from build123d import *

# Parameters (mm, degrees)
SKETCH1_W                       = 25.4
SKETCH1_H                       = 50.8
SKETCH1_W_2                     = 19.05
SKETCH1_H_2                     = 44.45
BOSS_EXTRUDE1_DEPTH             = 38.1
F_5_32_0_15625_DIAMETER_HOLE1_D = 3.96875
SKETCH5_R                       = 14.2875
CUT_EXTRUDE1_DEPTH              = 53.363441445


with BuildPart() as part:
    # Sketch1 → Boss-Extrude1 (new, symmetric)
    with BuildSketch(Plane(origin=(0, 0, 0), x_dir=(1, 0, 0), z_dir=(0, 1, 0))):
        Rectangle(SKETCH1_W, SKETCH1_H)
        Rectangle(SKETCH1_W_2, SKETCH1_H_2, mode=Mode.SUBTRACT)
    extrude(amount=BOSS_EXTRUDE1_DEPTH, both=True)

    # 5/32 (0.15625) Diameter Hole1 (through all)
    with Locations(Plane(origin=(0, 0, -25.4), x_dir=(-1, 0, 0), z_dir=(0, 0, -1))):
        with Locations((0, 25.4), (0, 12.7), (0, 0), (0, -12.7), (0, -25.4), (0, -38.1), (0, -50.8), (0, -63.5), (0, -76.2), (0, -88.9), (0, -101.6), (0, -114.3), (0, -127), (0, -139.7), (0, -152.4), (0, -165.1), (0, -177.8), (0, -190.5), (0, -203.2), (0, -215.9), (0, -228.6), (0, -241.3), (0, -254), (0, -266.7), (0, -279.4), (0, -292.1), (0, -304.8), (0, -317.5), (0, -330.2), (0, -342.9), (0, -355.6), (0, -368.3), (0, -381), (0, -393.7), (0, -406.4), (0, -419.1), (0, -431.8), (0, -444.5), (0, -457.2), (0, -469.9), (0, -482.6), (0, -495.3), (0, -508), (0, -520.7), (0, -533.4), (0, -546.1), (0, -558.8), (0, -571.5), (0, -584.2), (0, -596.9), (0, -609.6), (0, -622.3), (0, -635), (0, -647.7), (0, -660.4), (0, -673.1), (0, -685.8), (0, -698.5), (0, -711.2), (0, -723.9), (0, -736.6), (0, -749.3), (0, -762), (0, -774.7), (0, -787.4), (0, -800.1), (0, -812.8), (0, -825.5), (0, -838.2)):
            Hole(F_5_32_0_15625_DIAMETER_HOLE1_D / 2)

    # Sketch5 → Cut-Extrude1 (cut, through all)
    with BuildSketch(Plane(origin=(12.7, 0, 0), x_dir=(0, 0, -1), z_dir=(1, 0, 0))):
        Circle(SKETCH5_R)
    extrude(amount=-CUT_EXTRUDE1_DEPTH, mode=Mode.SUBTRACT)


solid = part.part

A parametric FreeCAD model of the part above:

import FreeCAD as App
import Part
import Sketcher
Q = App.Units.Quantity

doc = App.newDocument("Part")
params = doc.addObject("Spreadsheet::Sheet", "Params")
for row, (alias, value) in enumerate([
    ("sketch1_width", "1 in"),
    ("sketch1_height", "2 in"),
    ("sketch1_width2", "0.75 in"),
    ("sketch1_height2", "1.75 in"),
    ("pad1_length", "3 in"),
    ("sketch2_diameter", "0.15625 in"),
    ("hole_diameter", "0.15625 in"),
    ("sketch3_diameter", "1.125 in"),
], start=1):
    params.set(f"A{row}", alias)
    params.set(f"B{row}", "=" + value)
    params.setAlias(f"B{row}", alias)

body = doc.addObject("PartDesign::Body", "Body")

# Sketch on XZ plane
sketch1 = body.newObject("Sketcher::SketchObject", "Sketch")
sketch1.AttachmentSupport = (doc.getObject("XZ_Plane"), [""])
sketch1.MapMode = "FlatFace"
sketch1.addGeometry([
    Part.LineSegment(App.Vector(-13, -25, 0), App.Vector(-13, 25, 0)),  # 0
    Part.LineSegment(App.Vector(-13, 25, 0), App.Vector(13, 25, 0)),  # 1
    Part.LineSegment(App.Vector(13, 25, 0), App.Vector(13, -25, 0)),  # 2
    Part.LineSegment(App.Vector(13, -25, 0), App.Vector(-13, -25, 0)),  # 3
    Part.LineSegment(App.Vector(10, 22, 0), App.Vector(-10, 22, 0)),  # 4
    Part.LineSegment(App.Vector(-10, 22, 0), App.Vector(-10, -22, 0)),  # 5
    Part.LineSegment(App.Vector(-10, -22, 0), App.Vector(10, -22, 0)),  # 6
    Part.LineSegment(App.Vector(10, -22, 0), App.Vector(10, 22, 0)),  # 7
], False)
sketch1.addConstraint([
    Sketcher.Constraint("Coincident", 0, 2, 1, 1),
    Sketcher.Constraint("Coincident", 1, 2, 2, 1),
    Sketcher.Constraint("Coincident", 2, 2, 3, 1),
    Sketcher.Constraint("Coincident", 3, 2, 0, 1),
    Sketcher.Constraint("Coincident", 4, 2, 5, 1),
    Sketcher.Constraint("Coincident", 5, 2, 6, 1),
    Sketcher.Constraint("Coincident", 6, 2, 7, 1),
    Sketcher.Constraint("Coincident", 7, 2, 4, 1),
    Sketcher.Constraint("Vertical", 0),
    Sketcher.Constraint("Horizontal", 1),
    Sketcher.Constraint("Vertical", 2),
    Sketcher.Constraint("Horizontal", 3),
    Sketcher.Constraint("Horizontal", 4),
    Sketcher.Constraint("Vertical", 5),
    Sketcher.Constraint("Horizontal", 6),
    Sketcher.Constraint("Vertical", 7),
    Sketcher.Constraint("Symmetric", 0, 2, 2, 2, -1, 1),
    Sketcher.Constraint("Symmetric", 4, 2, 6, 2, -1, 1),
    Sketcher.Constraint("DistanceX", 1, 1, 1, 2, Q("1 in")),
    Sketcher.Constraint("DistanceY", 0, 1, 0, 2, Q("2 in")),
    Sketcher.Constraint("DistanceX", 4, 2, 4, 1, Q("0.75 in")),
    Sketcher.Constraint("DistanceY", 5, 2, 5, 1, Q("1.75 in")),
])
sketch1.setExpression("Constraints[18]", "Params.sketch1_width")
sketch1.setExpression("Constraints[19]", "Params.sketch1_height")
sketch1.setExpression("Constraints[20]", "Params.sketch1_width2")
sketch1.setExpression("Constraints[21]", "Params.sketch1_height2")
pad1 = body.newObject("PartDesign::Pad", "Pad")
pad1.Profile = sketch1
pad1.setExpression("Length", "Params.pad1_length")
pad1.Midplane = True

# Sketch on XY plane
sketch2 = body.newObject("Sketcher::SketchObject", "Sketch001")
sketch2.AttachmentSupport = (doc.getObject("XY_Plane"), [""])
sketch2.MapMode = "FlatFace"
sketch2.AttachmentOffset = App.Placement(App.Vector(0, 0, -1 * 25.4), App.Rotation())
sketch2.addGeometry([
    Part.Circle(App.Vector(0, 25.4, 0), App.Vector(0, 0, 1), 2),  # 0
    Part.Circle(App.Vector(0, 12.7, 0), App.Vector(0, 0, 1), 2),  # 1
    Part.Circle(App.Vector(0, 0, 0), App.Vector(0, 0, 1), 2),  # 2
    Part.Circle(App.Vector(0, -12.7, 0), App.Vector(0, 0, 1), 2),  # 3
    Part.Circle(App.Vector(0, -25.4, 0), App.Vector(0, 0, 1), 2),  # 4
    Part.Circle(App.Vector(0, -38.1, 0), App.Vector(0, 0, 1), 2),  # 5
    Part.Circle(App.Vector(0, -50.8, 0), App.Vector(0, 0, 1), 2),  # 6
    Part.Circle(App.Vector(0, -63.5, 0), App.Vector(0, 0, 1), 2),  # 7
    Part.Circle(App.Vector(0, -76.2, 0), App.Vector(0, 0, 1), 2),  # 8
    Part.Circle(App.Vector(0, -88.9, 0), App.Vector(0, 0, 1), 2),  # 9
    Part.Circle(App.Vector(0, -101.6, 0), App.Vector(0, 0, 1), 2),  # 10
    Part.Circle(App.Vector(0, -114.3, 0), App.Vector(0, 0, 1), 2),  # 11
    Part.Circle(App.Vector(0, -127, 0), App.Vector(0, 0, 1), 2),  # 12
    Part.Circle(App.Vector(0, -139.7, 0), App.Vector(0, 0, 1), 2),  # 13
    Part.Circle(App.Vector(0, -152.4, 0), App.Vector(0, 0, 1), 2),  # 14
    Part.Circle(App.Vector(0, -165.1, 0), App.Vector(0, 0, 1), 2),  # 15
    Part.Circle(App.Vector(0, -177.8, 0), App.Vector(0, 0, 1), 2),  # 16
    Part.Circle(App.Vector(0, -190.5, 0), App.Vector(0, 0, 1), 2),  # 17
    Part.Circle(App.Vector(0, -203.2, 0), App.Vector(0, 0, 1), 2),  # 18
    Part.Circle(App.Vector(0, -215.9, 0), App.Vector(0, 0, 1), 2),  # 19
    Part.Circle(App.Vector(0, -228.6, 0), App.Vector(0, 0, 1), 2),  # 20
    Part.Circle(App.Vector(0, -241.3, 0), App.Vector(0, 0, 1), 2),  # 21
    Part.Circle(App.Vector(0, -254, 0), App.Vector(0, 0, 1), 2),  # 22
    Part.Circle(App.Vector(0, -266.7, 0), App.Vector(0, 0, 1), 2),  # 23
    Part.Circle(App.Vector(0, -279.4, 0), App.Vector(0, 0, 1), 2),  # 24
    Part.Circle(App.Vector(0, -292.1, 0), App.Vector(0, 0, 1), 2),  # 25
    Part.Circle(App.Vector(0, -304.8, 0), App.Vector(0, 0, 1), 2),  # 26
    Part.Circle(App.Vector(0, -317.5, 0), App.Vector(0, 0, 1), 2),  # 27
    Part.Circle(App.Vector(0, -330.2, 0), App.Vector(0, 0, 1), 2),  # 28
    Part.Circle(App.Vector(0, -342.9, 0), App.Vector(0, 0, 1), 2),  # 29
    Part.Circle(App.Vector(0, -355.6, 0), App.Vector(0, 0, 1), 2),  # 30
    Part.Circle(App.Vector(0, -368.3, 0), App.Vector(0, 0, 1), 2),  # 31
    Part.Circle(App.Vector(0, -381, 0), App.Vector(0, 0, 1), 2),  # 32
    Part.Circle(App.Vector(0, -393.7, 0), App.Vector(0, 0, 1), 2),  # 33
    Part.Circle(App.Vector(0, -406.4, 0), App.Vector(0, 0, 1), 2),  # 34
    Part.Circle(App.Vector(0, -419.1, 0), App.Vector(0, 0, 1), 2),  # 35
    Part.Circle(App.Vector(0, -431.8, 0), App.Vector(0, 0, 1), 2),  # 36
    Part.Circle(App.Vector(0, -444.5, 0), App.Vector(0, 0, 1), 2),  # 37
    Part.Circle(App.Vector(0, -457.2, 0), App.Vector(0, 0, 1), 2),  # 38
    Part.Circle(App.Vector(0, -469.9, 0), App.Vector(0, 0, 1), 2),  # 39
    Part.Circle(App.Vector(0, -482.6, 0), App.Vector(0, 0, 1), 2),  # 40
    Part.Circle(App.Vector(0, -495.3, 0), App.Vector(0, 0, 1), 2),  # 41
    Part.Circle(App.Vector(0, -508, 0), App.Vector(0, 0, 1), 2),  # 42
    Part.Circle(App.Vector(0, -520.7, 0), App.Vector(0, 0, 1), 2),  # 43
    Part.Circle(App.Vector(0, -533.4, 0), App.Vector(0, 0, 1), 2),  # 44
    Part.Circle(App.Vector(0, -546.1, 0), App.Vector(0, 0, 1), 2),  # 45
    Part.Circle(App.Vector(0, -558.8, 0), App.Vector(0, 0, 1), 2),  # 46
    Part.Circle(App.Vector(0, -571.5, 0), App.Vector(0, 0, 1), 2),  # 47
    Part.Circle(App.Vector(0, -584.2, 0), App.Vector(0, 0, 1), 2),  # 48
    Part.Circle(App.Vector(0, -596.9, 0), App.Vector(0, 0, 1), 2),  # 49
    Part.Circle(App.Vector(0, -609.6, 0), App.Vector(0, 0, 1), 2),  # 50
    Part.Circle(App.Vector(0, -622.3, 0), App.Vector(0, 0, 1), 2),  # 51
    Part.Circle(App.Vector(0, -635, 0), App.Vector(0, 0, 1), 2),  # 52
    Part.Circle(App.Vector(0, -647.7, 0), App.Vector(0, 0, 1), 2),  # 53
    Part.Circle(App.Vector(0, -660.4, 0), App.Vector(0, 0, 1), 2),  # 54
    Part.Circle(App.Vector(0, -673.1, 0), App.Vector(0, 0, 1), 2),  # 55
    Part.Circle(App.Vector(0, -685.8, 0), App.Vector(0, 0, 1), 2),  # 56
    Part.Circle(App.Vector(0, -698.5, 0), App.Vector(0, 0, 1), 2),  # 57
    Part.Circle(App.Vector(0, -711.2, 0), App.Vector(0, 0, 1), 2),  # 58
    Part.Circle(App.Vector(0, -723.9, 0), App.Vector(0, 0, 1), 2),  # 59
    Part.Circle(App.Vector(0, -736.6, 0), App.Vector(0, 0, 1), 2),  # 60
    Part.Circle(App.Vector(0, -749.3, 0), App.Vector(0, 0, 1), 2),  # 61
    Part.Circle(App.Vector(0, -762, 0), App.Vector(0, 0, 1), 2),  # 62
    Part.Circle(App.Vector(0, -774.7, 0), App.Vector(0, 0, 1), 2),  # 63
    Part.Circle(App.Vector(0, -787.4, 0), App.Vector(0, 0, 1), 2),  # 64
    Part.Circle(App.Vector(0, -800.1, 0), App.Vector(0, 0, 1), 2),  # 65
    Part.Circle(App.Vector(0, -812.8, 0), App.Vector(0, 0, 1), 2),  # 66
    Part.Circle(App.Vector(0, -825.5, 0), App.Vector(0, 0, 1), 2),  # 67
    Part.Circle(App.Vector(0, -838.2, 0), App.Vector(0, 0, 1), 2),  # 68
], False)
sketch2.addConstraint([
    Sketcher.Constraint("Coincident", 2, 3, -1, 1),
    Sketcher.Constraint("Equal", 0, 1),
    Sketcher.Constraint("Equal", 1, 2),
    Sketcher.Constraint("Equal", 2, 3),
    Sketcher.Constraint("Equal", 3, 4),
    Sketcher.Constraint("Equal", 4, 5),
    Sketcher.Constraint("Equal", 5, 6),
    Sketcher.Constraint("Equal", 6, 7),
    Sketcher.Constraint("Equal", 7, 8),
    Sketcher.Constraint("Equal", 8, 9),
    Sketcher.Constraint("Equal", 9, 10),
    Sketcher.Constraint("Equal", 10, 11),
    Sketcher.Constraint("Equal", 11, 12),
    Sketcher.Constraint("Equal", 12, 13),
    Sketcher.Constraint("Equal", 13, 14),
    Sketcher.Constraint("Equal", 14, 15),
    Sketcher.Constraint("Equal", 15, 16),
    Sketcher.Constraint("Equal", 16, 17),
    Sketcher.Constraint("Equal", 17, 18),
    Sketcher.Constraint("Equal", 18, 19),
    Sketcher.Constraint("Equal", 19, 20),
    Sketcher.Constraint("Equal", 20, 21),
    Sketcher.Constraint("Equal", 21, 22),
    Sketcher.Constraint("Equal", 22, 23),
    Sketcher.Constraint("Equal", 23, 24),
    Sketcher.Constraint("Equal", 24, 25),
    Sketcher.Constraint("Equal", 25, 26),
    Sketcher.Constraint("Equal", 26, 27),
    Sketcher.Constraint("Equal", 27, 28),
    Sketcher.Constraint("Equal", 28, 29),
    Sketcher.Constraint("Equal", 29, 30),
    Sketcher.Constraint("Equal", 30, 31),
    Sketcher.Constraint("Equal", 31, 32),
    Sketcher.Constraint("Equal", 32, 33),
    Sketcher.Constraint("Equal", 33, 34),
    Sketcher.Constraint("Equal", 34, 35),
    Sketcher.Constraint("Equal", 35, 36),
    Sketcher.Constraint("Equal", 36, 37),
    Sketcher.Constraint("Equal", 37, 38),
    Sketcher.Constraint("Equal", 38, 39),
    Sketcher.Constraint("Equal", 39, 40),
    Sketcher.Constraint("Equal", 40, 41),
    Sketcher.Constraint("Equal", 41, 42),
    Sketcher.Constraint("Equal", 42, 43),
    Sketcher.Constraint("Equal", 43, 44),
    Sketcher.Constraint("Equal", 44, 45),
    Sketcher.Constraint("Equal", 45, 46),
    Sketcher.Constraint("Equal", 46, 47),
    Sketcher.Constraint("Equal", 47, 48),
    Sketcher.Constraint("Equal", 48, 49),
    Sketcher.Constraint("Equal", 49, 50),
    Sketcher.Constraint("Equal", 50, 51),
    Sketcher.Constraint("Equal", 51, 52),
    Sketcher.Constraint("Equal", 52, 53),
    Sketcher.Constraint("Equal", 53, 54),
    Sketcher.Constraint("Equal", 54, 55),
    Sketcher.Constraint("Equal", 55, 56),
    Sketcher.Constraint("Equal", 56, 57),
    Sketcher.Constraint("Equal", 57, 58),
    Sketcher.Constraint("Equal", 58, 59),
    Sketcher.Constraint("Equal", 59, 60),
    Sketcher.Constraint("Equal", 60, 61),
    Sketcher.Constraint("Equal", 61, 62),
    Sketcher.Constraint("Equal", 62, 63),
    Sketcher.Constraint("Equal", 63, 64),
    Sketcher.Constraint("Equal", 64, 65),
    Sketcher.Constraint("Equal", 65, 66),
    Sketcher.Constraint("Equal", 66, 67),
    Sketcher.Constraint("Equal", 67, 68),
    Sketcher.Constraint("Symmetric", 1, 3, 3, 3, -1, 1),
    Sketcher.Constraint("Symmetric", 0, 3, 4, 3, -1, 1),
    Sketcher.Constraint("PointOnObject", 0, 3, -2),
    Sketcher.Constraint("PointOnObject", 1, 3, -2),
    Sketcher.Constraint("PointOnObject", 5, 3, -2),
    Sketcher.Constraint("PointOnObject", 6, 3, -2),
    Sketcher.Constraint("PointOnObject", 7, 3, -2),
    Sketcher.Constraint("PointOnObject", 8, 3, -2),
    Sketcher.Constraint("PointOnObject", 9, 3, -2),
    Sketcher.Constraint("PointOnObject", 10, 3, -2),
    Sketcher.Constraint("PointOnObject", 11, 3, -2),
    Sketcher.Constraint("PointOnObject", 12, 3, -2),
    Sketcher.Constraint("PointOnObject", 13, 3, -2),
    Sketcher.Constraint("PointOnObject", 14, 3, -2),
    Sketcher.Constraint("PointOnObject", 15, 3, -2),
    Sketcher.Constraint("PointOnObject", 16, 3, -2),
    Sketcher.Constraint("PointOnObject", 17, 3, -2),
    Sketcher.Constraint("PointOnObject", 18, 3, -2),
    Sketcher.Constraint("PointOnObject", 19, 3, -2),
    Sketcher.Constraint("PointOnObject", 20, 3, -2),
    Sketcher.Constraint("PointOnObject", 21, 3, -2),
    Sketcher.Constraint("PointOnObject", 22, 3, -2),
    Sketcher.Constraint("PointOnObject", 23, 3, -2),
    Sketcher.Constraint("PointOnObject", 24, 3, -2),
    Sketcher.Constraint("PointOnObject", 25, 3, -2),
    Sketcher.Constraint("PointOnObject", 26, 3, -2),
    Sketcher.Constraint("PointOnObject", 27, 3, -2),
    Sketcher.Constraint("PointOnObject", 28, 3, -2),
    Sketcher.Constraint("PointOnObject", 29, 3, -2),
    Sketcher.Constraint("PointOnObject", 30, 3, -2),
    Sketcher.Constraint("PointOnObject", 31, 3, -2),
    Sketcher.Constraint("PointOnObject", 32, 3, -2),
    Sketcher.Constraint("PointOnObject", 33, 3, -2),
    Sketcher.Constraint("PointOnObject", 34, 3, -2),
    Sketcher.Constraint("PointOnObject", 35, 3, -2),
    Sketcher.Constraint("PointOnObject", 36, 3, -2),
    Sketcher.Constraint("PointOnObject", 37, 3, -2),
    Sketcher.Constraint("PointOnObject", 38, 3, -2),
    Sketcher.Constraint("PointOnObject", 39, 3, -2),
    Sketcher.Constraint("PointOnObject", 40, 3, -2),
    Sketcher.Constraint("PointOnObject", 41, 3, -2),
    Sketcher.Constraint("PointOnObject", 42, 3, -2),
    Sketcher.Constraint("PointOnObject", 43, 3, -2),
    Sketcher.Constraint("PointOnObject", 44, 3, -2),
    Sketcher.Constraint("PointOnObject", 45, 3, -2),
    Sketcher.Constraint("PointOnObject", 46, 3, -2),
    Sketcher.Constraint("PointOnObject", 47, 3, -2),
    Sketcher.Constraint("PointOnObject", 48, 3, -2),
    Sketcher.Constraint("PointOnObject", 49, 3, -2),
    Sketcher.Constraint("PointOnObject", 50, 3, -2),
    Sketcher.Constraint("PointOnObject", 51, 3, -2),
    Sketcher.Constraint("PointOnObject", 52, 3, -2),
    Sketcher.Constraint("PointOnObject", 53, 3, -2),
    Sketcher.Constraint("PointOnObject", 54, 3, -2),
    Sketcher.Constraint("PointOnObject", 55, 3, -2),
    Sketcher.Constraint("PointOnObject", 56, 3, -2),
    Sketcher.Constraint("PointOnObject", 57, 3, -2),
    Sketcher.Constraint("PointOnObject", 58, 3, -2),
    Sketcher.Constraint("PointOnObject", 59, 3, -2),
    Sketcher.Constraint("PointOnObject", 60, 3, -2),
    Sketcher.Constraint("PointOnObject", 61, 3, -2),
    Sketcher.Constraint("PointOnObject", 62, 3, -2),
    Sketcher.Constraint("PointOnObject", 63, 3, -2),
    Sketcher.Constraint("PointOnObject", 64, 3, -2),
    Sketcher.Constraint("PointOnObject", 65, 3, -2),
    Sketcher.Constraint("PointOnObject", 66, 3, -2),
    Sketcher.Constraint("PointOnObject", 67, 3, -2),
    Sketcher.Constraint("PointOnObject", 68, 3, -2),
    Sketcher.Constraint("Diameter", 0, Q("0.15625 in")),
    Sketcher.Constraint("DistanceY", -1, 1, 0, 3, Q("1 in")),
    Sketcher.Constraint("DistanceY", 6, 3, -1, 1, Q("2 in")),
    Sketcher.Constraint("DistanceY", 8, 3, -1, 1, Q("3 in")),
    Sketcher.Constraint("DistanceY", 10, 3, -1, 1, Q("4 in")),
    Sketcher.Constraint("DistanceY", 12, 3, -1, 1, Q("5 in")),
    Sketcher.Constraint("DistanceY", 14, 3, -1, 1, Q("6 in")),
    Sketcher.Constraint("DistanceY", 16, 3, -1, 1, Q("7 in")),
    Sketcher.Constraint("DistanceY", 18, 3, -1, 1, Q("8 in")),
    Sketcher.Constraint("DistanceY", 20, 3, -1, 1, Q("9 in")),
    Sketcher.Constraint("DistanceY", 22, 3, -1, 1, Q("10 in")),
    Sketcher.Constraint("DistanceY", 24, 3, -1, 1, Q("11 in")),
    Sketcher.Constraint("DistanceY", 26, 3, -1, 1, Q("12 in")),
    Sketcher.Constraint("DistanceY", 28, 3, -1, 1, Q("13 in")),
    Sketcher.Constraint("DistanceY", 30, 3, -1, 1, Q("14 in")),
    Sketcher.Constraint("DistanceY", 32, 3, -1, 1, Q("15 in")),
    Sketcher.Constraint("DistanceY", 34, 3, -1, 1, Q("16 in")),
    Sketcher.Constraint("DistanceY", 36, 3, -1, 1, Q("17 in")),
    Sketcher.Constraint("DistanceY", 38, 3, -1, 1, Q("18 in")),
    Sketcher.Constraint("DistanceY", 40, 3, -1, 1, Q("19 in")),
    Sketcher.Constraint("DistanceY", 42, 3, -1, 1, Q("20 in")),
    Sketcher.Constraint("DistanceY", 44, 3, -1, 1, Q("21 in")),
    Sketcher.Constraint("DistanceY", 46, 3, -1, 1, Q("22 in")),
    Sketcher.Constraint("DistanceY", 48, 3, -1, 1, Q("23 in")),
    Sketcher.Constraint("DistanceY", 50, 3, -1, 1, Q("24 in")),
    Sketcher.Constraint("DistanceY", 52, 3, -1, 1, Q("25 in")),
    Sketcher.Constraint("DistanceY", 54, 3, -1, 1, Q("26 in")),
    Sketcher.Constraint("DistanceY", 56, 3, -1, 1, Q("27 in")),
    Sketcher.Constraint("DistanceY", 58, 3, -1, 1, Q("28 in")),
    Sketcher.Constraint("DistanceY", 60, 3, -1, 1, Q("29 in")),
    Sketcher.Constraint("DistanceY", 62, 3, -1, 1, Q("30 in")),
    Sketcher.Constraint("DistanceY", 64, 3, -1, 1, Q("31 in")),
    Sketcher.Constraint("DistanceY", 66, 3, -1, 1, Q("32 in")),
    Sketcher.Constraint("DistanceY", 68, 3, -1, 1, Q("33 in")),
    Sketcher.Constraint("DistanceY", -1, 1, 1, 3, Q("0.5 in")),
    Sketcher.Constraint("DistanceY", 5, 3, -1, 1, Q("1.5 in")),
    Sketcher.Constraint("DistanceY", 7, 3, -1, 1, Q("2.5 in")),
    Sketcher.Constraint("DistanceY", 9, 3, -1, 1, Q("3.5 in")),
    Sketcher.Constraint("DistanceY", 11, 3, -1, 1, Q("4.5 in")),
    Sketcher.Constraint("DistanceY", 13, 3, -1, 1, Q("5.5 in")),
    Sketcher.Constraint("DistanceY", 15, 3, -1, 1, Q("6.5 in")),
    Sketcher.Constraint("DistanceY", 17, 3, -1, 1, Q("7.5 in")),
    Sketcher.Constraint("DistanceY", 19, 3, -1, 1, Q("8.5 in")),
    Sketcher.Constraint("DistanceY", 21, 3, -1, 1, Q("9.5 in")),
    Sketcher.Constraint("DistanceY", 23, 3, -1, 1, Q("10.5 in")),
    Sketcher.Constraint("DistanceY", 25, 3, -1, 1, Q("11.5 in")),
    Sketcher.Constraint("DistanceY", 27, 3, -1, 1, Q("12.5 in")),
    Sketcher.Constraint("DistanceY", 29, 3, -1, 1, Q("13.5 in")),
    Sketcher.Constraint("DistanceY", 31, 3, -1, 1, Q("14.5 in")),
    Sketcher.Constraint("DistanceY", 33, 3, -1, 1, Q("15.5 in")),
    Sketcher.Constraint("DistanceY", 35, 3, -1, 1, Q("16.5 in")),
    Sketcher.Constraint("DistanceY", 37, 3, -1, 1, Q("17.5 in")),
    Sketcher.Constraint("DistanceY", 39, 3, -1, 1, Q("18.5 in")),
    Sketcher.Constraint("DistanceY", 41, 3, -1, 1, Q("19.5 in")),
    Sketcher.Constraint("DistanceY", 43, 3, -1, 1, Q("20.5 in")),
    Sketcher.Constraint("DistanceY", 45, 3, -1, 1, Q("21.5 in")),
    Sketcher.Constraint("DistanceY", 47, 3, -1, 1, Q("22.5 in")),
    Sketcher.Constraint("DistanceY", 49, 3, -1, 1, Q("23.5 in")),
    Sketcher.Constraint("DistanceY", 51, 3, -1, 1, Q("24.5 in")),
    Sketcher.Constraint("DistanceY", 53, 3, -1, 1, Q("25.5 in")),
    Sketcher.Constraint("DistanceY", 55, 3, -1, 1, Q("26.5 in")),
    Sketcher.Constraint("DistanceY", 57, 3, -1, 1, Q("27.5 in")),
    Sketcher.Constraint("DistanceY", 59, 3, -1, 1, Q("28.5 in")),
    Sketcher.Constraint("DistanceY", 61, 3, -1, 1, Q("29.5 in")),
    Sketcher.Constraint("DistanceY", 63, 3, -1, 1, Q("30.5 in")),
    Sketcher.Constraint("DistanceY", 65, 3, -1, 1, Q("31.5 in")),
    Sketcher.Constraint("DistanceY", 67, 3, -1, 1, Q("32.5 in")),
])
sketch2.setExpression("Constraints[137]", "Params.sketch2_diameter")
doc.recompute()
hole = body.newObject("PartDesign::Hole", "Hole")
hole.Profile = sketch2
hole.ThreadType = "None"
hole.setExpression("Diameter", "Params.hole_diameter")
hole.DepthType = "ThroughAll"
hole.Reversed = True

# Sketch on YZ plane
sketch3 = body.newObject("Sketcher::SketchObject", "Sketch002")
sketch3.AttachmentSupport = (doc.getObject("YZ_Plane"), [""])
sketch3.MapMode = "FlatFace"
sketch3.AttachmentOffset = App.Placement(App.Vector(0, 0, 0.5 * 25.4), App.Rotation())
sketch3.addGeometry(Part.Circle(App.Vector(0, 0, 0), App.Vector(0, 0, 1), 14), False)
sketch3.addConstraint([
    Sketcher.Constraint("Coincident", 0, 3, -1, 1),
    Sketcher.Constraint("Diameter", 0, Q("1.125 in")),
])
sketch3.setExpression("Constraints[1]", "Params.sketch3_diameter")
pocket1 = body.newObject("PartDesign::Pocket", "Pocket")
pocket1.Profile = sketch3
pocket1.Type = "ThroughAll"

doc.recompute()
